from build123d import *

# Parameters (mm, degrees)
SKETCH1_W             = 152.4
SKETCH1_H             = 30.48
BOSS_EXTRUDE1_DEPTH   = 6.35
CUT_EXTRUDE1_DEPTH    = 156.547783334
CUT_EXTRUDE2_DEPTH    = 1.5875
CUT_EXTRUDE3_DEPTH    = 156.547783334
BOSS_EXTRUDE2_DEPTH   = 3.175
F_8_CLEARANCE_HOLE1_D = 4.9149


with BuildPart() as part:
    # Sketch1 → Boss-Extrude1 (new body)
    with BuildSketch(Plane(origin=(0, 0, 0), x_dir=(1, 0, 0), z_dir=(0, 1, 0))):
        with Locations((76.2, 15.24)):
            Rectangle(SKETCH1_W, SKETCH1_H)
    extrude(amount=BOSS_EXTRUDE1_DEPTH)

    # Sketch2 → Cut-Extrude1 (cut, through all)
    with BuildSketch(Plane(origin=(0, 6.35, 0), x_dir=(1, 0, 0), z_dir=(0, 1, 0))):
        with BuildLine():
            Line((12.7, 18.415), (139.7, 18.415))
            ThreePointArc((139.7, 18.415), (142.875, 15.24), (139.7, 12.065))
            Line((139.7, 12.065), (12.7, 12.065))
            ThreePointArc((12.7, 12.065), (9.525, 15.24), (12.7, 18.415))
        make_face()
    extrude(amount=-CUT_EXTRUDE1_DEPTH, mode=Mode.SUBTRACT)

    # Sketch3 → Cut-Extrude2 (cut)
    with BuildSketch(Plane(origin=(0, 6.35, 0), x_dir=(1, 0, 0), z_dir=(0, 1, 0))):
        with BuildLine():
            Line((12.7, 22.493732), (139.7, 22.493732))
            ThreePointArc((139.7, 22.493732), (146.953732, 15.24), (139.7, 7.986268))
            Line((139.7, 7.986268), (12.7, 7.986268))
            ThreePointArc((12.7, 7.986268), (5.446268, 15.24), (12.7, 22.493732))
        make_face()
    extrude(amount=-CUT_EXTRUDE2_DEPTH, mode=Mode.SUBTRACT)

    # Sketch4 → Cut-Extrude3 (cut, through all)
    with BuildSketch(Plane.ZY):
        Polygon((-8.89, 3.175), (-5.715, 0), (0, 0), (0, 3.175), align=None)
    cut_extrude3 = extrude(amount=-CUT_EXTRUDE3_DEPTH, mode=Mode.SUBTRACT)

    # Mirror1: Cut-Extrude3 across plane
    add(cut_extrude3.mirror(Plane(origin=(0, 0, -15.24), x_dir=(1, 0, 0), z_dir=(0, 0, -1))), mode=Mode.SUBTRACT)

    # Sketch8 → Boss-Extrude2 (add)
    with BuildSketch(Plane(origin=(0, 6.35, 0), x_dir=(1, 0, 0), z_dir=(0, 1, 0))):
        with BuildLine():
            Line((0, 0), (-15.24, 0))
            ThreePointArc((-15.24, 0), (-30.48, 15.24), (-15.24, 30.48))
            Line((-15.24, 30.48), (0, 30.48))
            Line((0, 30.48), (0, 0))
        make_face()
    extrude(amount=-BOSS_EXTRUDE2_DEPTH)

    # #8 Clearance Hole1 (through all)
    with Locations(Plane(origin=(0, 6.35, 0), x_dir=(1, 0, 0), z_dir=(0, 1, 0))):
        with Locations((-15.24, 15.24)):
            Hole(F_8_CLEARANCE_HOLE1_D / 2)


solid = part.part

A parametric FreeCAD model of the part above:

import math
import FreeCAD as App
import Part
import Sketcher
Q = App.Units.Quantity


def add_polygon(sketch, points):
    """Adds a closed chain of lines whose ends are joined by coincident constraints."""
    first, n = sketch.GeometryCount, len(points)
    for a, b in zip(points, points[1:] + points[:1]):
        sketch.addGeometry(Part.LineSegment(App.Vector(*a, 0), App.Vector(*b, 0)), False)
    for i in range(n):
        sketch.addConstraint(Sketcher.Constraint("Coincident", first + i, 2, first + (i + 1) % n, 1))

doc = App.newDocument("Part")
body = doc.addObject("PartDesign::Body", "Body")

# Sketch on XZ plane
sketch1 = body.newObject("Sketcher::SketchObject", "Sketch")
sketch1.AttachmentSupport = (doc.getObject("XZ_Plane"), [""])
sketch1.MapMode = "FlatFace"
add_polygon(sketch1, [(0, -30), (0, 0), (152, 0), (152, -30)])  # lines 0-3
sketch1.addConstraint([
    Sketcher.Constraint("Vertical", 0),
    Sketcher.Constraint("Horizontal", 1),
    Sketcher.Constraint("Vertical", 2),
    Sketcher.Constraint("Horizontal", 3),
    Sketcher.Constraint("Coincident", 0, 2, -1, 1),
    Sketcher.Constraint("DistanceX", 1, 1, 1, 2, Q("6 in")),
    Sketcher.Constraint("DistanceY", 0, 1, 0, 2, Q("1.2 in")),
])
pad1 = body.newObject("PartDesign::Pad", "Pad")
pad1.Profile = sketch1
pad1.Length = Q("0.25 in")
pad1.Reversed = True

# Sketch on XZ plane
sketch2 = body.newObject("Sketcher::SketchObject", "Sketch001")
sketch2.AttachmentSupport = (doc.getObject("XZ_Plane"), [""])
sketch2.MapMode = "FlatFace"
sketch2.AttachmentOffset = App.Placement(App.Vector(0, 0, -0.25 * 25.4), App.Rotation())
sketch2.addGeometry([
    Part.LineSegment(App.Vector(139.7, -18.4, 0), App.Vector(12.7, -18.4, 0)),
    Part.ArcOfCircle(Part.Circle(App.Vector(12.7, -15.2, 0), App.Vector(0, 0, 1), 3.2), math.radians(90), math.radians(270)),
    Part.LineSegment(App.Vector(12.7, -12.1, 0), App.Vector(139.7, -12.1, 0)),
    Part.ArcOfCircle(Part.Circle(App.Vector(139.7, -15.2, 0), App.Vector(0, 0, 1), 3.2), math.radians(-90), math.radians(90)),
], False)
sketch2.addConstraint([
    Sketcher.Constraint("Tangent", 0, 2, 1, 2),
    Sketcher.Constraint("Tangent", 1, 1, 2, 1),
    Sketcher.Constraint("Tangent", 2, 2, 3, 2),
    Sketcher.Constraint("Tangent", 3, 1, 0, 1),
    Sketcher.Constraint("Horizontal", 0),
    Sketcher.Constraint("Horizontal", 2),
    Sketcher.Constraint("DistanceX", 0, 2, 0, 1, Q("5 in")),
    Sketcher.Constraint("Radius", 1, Q("0.125 in")),
    Sketcher.Constraint("DistanceX", -1, 1, 1, 3, Q("0.5 in")),
    Sketcher.Constraint("DistanceY", 1, 3, -1, 1, Q("0.6 in")),
])
pocket1 = body.newObject("PartDesign::Pocket", "Pocket")
pocket1.Profile = sketch2
pocket1.Type = "ThroughAll"
pocket1.Reversed = True

# Sketch on XZ plane
sketch3 = body.newObject("Sketcher::SketchObject", "Sketch002")
sketch3.AttachmentSupport = (doc.getObject("XZ_Plane"), [""])
sketch3.MapMode = "FlatFace"
sketch3.AttachmentOffset = App.Placement(App.Vector(0, 0, -0.25 * 25.4), App.Rotation())
sketch3.addGeometry([
    Part.LineSegment(App.Vector(140, -22, 0), App.Vector(13, -22, 0)),
    Part.ArcOfCircle(Part.Circle(App.Vector(13, -15, 0), App.Vector(0, 0, 1), 7), math.radians(90), math.radians(270)),
    Part.LineSegment(App.Vector(13, -8, 0), App.Vector(140, -8, 0)),
    Part.ArcOfCircle(Part.Circle(App.Vector(140, -15, 0), App.Vector(0, 0, 1), 7), math.radians(-90), math.radians(90)),
], False)
sketch3.addConstraint([
    Sketcher.Constraint("Tangent", 0, 2, 1, 2),
    Sketcher.Constraint("Tangent", 1, 1, 2, 1),
    Sketcher.Constraint("Tangent", 2, 2, 3, 2),
    Sketcher.Constraint("Tangent", 3, 1, 0, 1),
    Sketcher.Constraint("Horizontal", 0),
    Sketcher.Constraint("Horizontal", 2),
    Sketcher.Constraint("DistanceX", 0, 2, 0, 1, Q("5 in")),
    Sketcher.Constraint("DistanceX", -1, 1, 1, 3, Q("0.5 in")),
    Sketcher.Constraint("DistanceY", 1, 3, -1, 1, Q("0.6 in")),
    Sketcher.Constraint("Radius", 1, Q("7.253732 mm")),
])
pocket2 = body.newObject("PartDesign::Pocket", "Pocket001")
pocket2.Profile = sketch3
pocket2.Length = Q("0.0625 in")
pocket2.Reversed = True

# Sketch on YZ plane
sketch4 = body.newObject("Sketcher::SketchObject", "Sketch003")
sketch4.AttachmentSupport = (doc.getObject("YZ_Plane"), [""])
sketch4.MapMode = "FlatFace"
add_polygon(sketch4, [(3.2, -8.9), (0, -5.7), (0, 0), (3.2, 0)])  # lines 0-3
sketch4.addConstraint([
    Sketcher.Constraint("Vertical", 1),
    Sketcher.Constraint("Horizontal", 2),
    Sketcher.Constraint("Vertical", 3),
    Sketcher.Constraint("Coincident", 1, 2, -1, 1),
    Sketcher.Constraint("Angle", 0, Q("135 deg")),
    Sketcher.Constraint("DistanceY", 3, 2, 3, 1, Q("0.35 in")),
    Sketcher.Constraint("DistanceX", 2, 1, 2, 2, Q("0.125 in")),
])
pocket3 = body.newObject("PartDesign::Pocket", "Pocket002")
pocket3.Profile = sketch4
pocket3.Type = "ThroughAll"
pocket3.Reversed = True
doc.recompute()

datumplane = body.newObject("PartDesign::Plane", "DatumPlane")
datumplane.AttachmentSupport = (doc.getObject("XY_Plane"), [""])
datumplane.MapMode = "FlatFace"
datumplane.AttachmentOffset = App.Placement(App.Vector(0, 0, -0.6 * 25.4), App.Rotation())
mirrored = body.newObject("PartDesign::Mirrored", "Mirrored")
mirrored.Originals = [pocket3]
mirrored.MirrorPlane = (datumplane, [""])
body.Tip = mirrored

# Sketch on XZ plane
sketch5 = body.newObject("Sketcher::SketchObject", "Sketch004")
sketch5.AttachmentSupport = (doc.getObject("XZ_Plane"), [""])
sketch5.MapMode = "FlatFace"
sketch5.AttachmentOffset = App.Placement(App.Vector(0, 0, -0.25 * 25.4), App.Rotation())
sketch5.addGeometry([
    Part.LineSegment(App.Vector(-15, 0, 0), App.Vector(0, 0, 0)),
    Part.LineSegment(App.Vector(0, 0, 0), App.Vector(0, -30, 0)),
    Part.LineSegment(App.Vector(0, -30, 0), App.Vector(-15, -30, 0)),
    Part.ArcOfCircle(Part.Circle(App.Vector(-15, -15, 0), App.Vector(0, 0, 1), 15), math.radians(90), math.radians(270)),
], False)
sketch5.addConstraint([
    Sketcher.Constraint("Coincident", 0, 2, 1, 1),
    Sketcher.Constraint("Coincident", 1, 2, 2, 1),
    Sketcher.Constraint("Tangent", 2, 2, 3, 2),
    Sketcher.Constraint("Tangent", 3, 1, 0, 1),
    Sketcher.Constraint("Horizontal", 0),
    Sketcher.Constraint("Vertical", 1),
    Sketcher.Constraint("Horizontal", 2),
    Sketcher.Constraint("Coincident", 0, 2, -1, 1),
    Sketcher.Constraint("Radius", 3, Q("0.6 in")),
    Sketcher.Constraint("DistanceX", 0, 1, 0, 2, Q("0.6 in")),
])
pad2 = body.newObject("PartDesign::Pad", "Pad001")
pad2.Profile = sketch5
pad2.Length = Q("0.125 in")

# Sketch on XZ plane
sketch6 = body.newObject("Sketcher::SketchObject", "Sketch005")
sketch6.AttachmentSupport = (doc.getObject("XZ_Plane"), [""])
sketch6.MapMode = "FlatFace"
sketch6.AttachmentOffset = App.Placement(App.Vector(0, 0, -0.25 * 25.4), App.Rotation())
sketch6.addGeometry(Part.Circle(App.Vector(-15.2, -15.2, 0), App.Vector(0, 0, 1), 2.5), False)
sketch6.addConstraint([
    Sketcher.Constraint("Diameter", 0, Q("0.1935 in")),
    Sketcher.Constraint("DistanceX", 0, 3, -1, 1, Q("0.6 in")),
    Sketcher.Constraint("DistanceY", 0, 3, -1, 1, Q("0.6 in")),
])
doc.recompute()
hole = body.newObject("PartDesign::Hole", "Hole")
hole.Profile = sketch6
hole.ThreadType = "None"
hole.Diameter = Q("0.1935 in")
hole.DepthType = "ThroughAll"
hole.Reversed = True

doc.recompute()
